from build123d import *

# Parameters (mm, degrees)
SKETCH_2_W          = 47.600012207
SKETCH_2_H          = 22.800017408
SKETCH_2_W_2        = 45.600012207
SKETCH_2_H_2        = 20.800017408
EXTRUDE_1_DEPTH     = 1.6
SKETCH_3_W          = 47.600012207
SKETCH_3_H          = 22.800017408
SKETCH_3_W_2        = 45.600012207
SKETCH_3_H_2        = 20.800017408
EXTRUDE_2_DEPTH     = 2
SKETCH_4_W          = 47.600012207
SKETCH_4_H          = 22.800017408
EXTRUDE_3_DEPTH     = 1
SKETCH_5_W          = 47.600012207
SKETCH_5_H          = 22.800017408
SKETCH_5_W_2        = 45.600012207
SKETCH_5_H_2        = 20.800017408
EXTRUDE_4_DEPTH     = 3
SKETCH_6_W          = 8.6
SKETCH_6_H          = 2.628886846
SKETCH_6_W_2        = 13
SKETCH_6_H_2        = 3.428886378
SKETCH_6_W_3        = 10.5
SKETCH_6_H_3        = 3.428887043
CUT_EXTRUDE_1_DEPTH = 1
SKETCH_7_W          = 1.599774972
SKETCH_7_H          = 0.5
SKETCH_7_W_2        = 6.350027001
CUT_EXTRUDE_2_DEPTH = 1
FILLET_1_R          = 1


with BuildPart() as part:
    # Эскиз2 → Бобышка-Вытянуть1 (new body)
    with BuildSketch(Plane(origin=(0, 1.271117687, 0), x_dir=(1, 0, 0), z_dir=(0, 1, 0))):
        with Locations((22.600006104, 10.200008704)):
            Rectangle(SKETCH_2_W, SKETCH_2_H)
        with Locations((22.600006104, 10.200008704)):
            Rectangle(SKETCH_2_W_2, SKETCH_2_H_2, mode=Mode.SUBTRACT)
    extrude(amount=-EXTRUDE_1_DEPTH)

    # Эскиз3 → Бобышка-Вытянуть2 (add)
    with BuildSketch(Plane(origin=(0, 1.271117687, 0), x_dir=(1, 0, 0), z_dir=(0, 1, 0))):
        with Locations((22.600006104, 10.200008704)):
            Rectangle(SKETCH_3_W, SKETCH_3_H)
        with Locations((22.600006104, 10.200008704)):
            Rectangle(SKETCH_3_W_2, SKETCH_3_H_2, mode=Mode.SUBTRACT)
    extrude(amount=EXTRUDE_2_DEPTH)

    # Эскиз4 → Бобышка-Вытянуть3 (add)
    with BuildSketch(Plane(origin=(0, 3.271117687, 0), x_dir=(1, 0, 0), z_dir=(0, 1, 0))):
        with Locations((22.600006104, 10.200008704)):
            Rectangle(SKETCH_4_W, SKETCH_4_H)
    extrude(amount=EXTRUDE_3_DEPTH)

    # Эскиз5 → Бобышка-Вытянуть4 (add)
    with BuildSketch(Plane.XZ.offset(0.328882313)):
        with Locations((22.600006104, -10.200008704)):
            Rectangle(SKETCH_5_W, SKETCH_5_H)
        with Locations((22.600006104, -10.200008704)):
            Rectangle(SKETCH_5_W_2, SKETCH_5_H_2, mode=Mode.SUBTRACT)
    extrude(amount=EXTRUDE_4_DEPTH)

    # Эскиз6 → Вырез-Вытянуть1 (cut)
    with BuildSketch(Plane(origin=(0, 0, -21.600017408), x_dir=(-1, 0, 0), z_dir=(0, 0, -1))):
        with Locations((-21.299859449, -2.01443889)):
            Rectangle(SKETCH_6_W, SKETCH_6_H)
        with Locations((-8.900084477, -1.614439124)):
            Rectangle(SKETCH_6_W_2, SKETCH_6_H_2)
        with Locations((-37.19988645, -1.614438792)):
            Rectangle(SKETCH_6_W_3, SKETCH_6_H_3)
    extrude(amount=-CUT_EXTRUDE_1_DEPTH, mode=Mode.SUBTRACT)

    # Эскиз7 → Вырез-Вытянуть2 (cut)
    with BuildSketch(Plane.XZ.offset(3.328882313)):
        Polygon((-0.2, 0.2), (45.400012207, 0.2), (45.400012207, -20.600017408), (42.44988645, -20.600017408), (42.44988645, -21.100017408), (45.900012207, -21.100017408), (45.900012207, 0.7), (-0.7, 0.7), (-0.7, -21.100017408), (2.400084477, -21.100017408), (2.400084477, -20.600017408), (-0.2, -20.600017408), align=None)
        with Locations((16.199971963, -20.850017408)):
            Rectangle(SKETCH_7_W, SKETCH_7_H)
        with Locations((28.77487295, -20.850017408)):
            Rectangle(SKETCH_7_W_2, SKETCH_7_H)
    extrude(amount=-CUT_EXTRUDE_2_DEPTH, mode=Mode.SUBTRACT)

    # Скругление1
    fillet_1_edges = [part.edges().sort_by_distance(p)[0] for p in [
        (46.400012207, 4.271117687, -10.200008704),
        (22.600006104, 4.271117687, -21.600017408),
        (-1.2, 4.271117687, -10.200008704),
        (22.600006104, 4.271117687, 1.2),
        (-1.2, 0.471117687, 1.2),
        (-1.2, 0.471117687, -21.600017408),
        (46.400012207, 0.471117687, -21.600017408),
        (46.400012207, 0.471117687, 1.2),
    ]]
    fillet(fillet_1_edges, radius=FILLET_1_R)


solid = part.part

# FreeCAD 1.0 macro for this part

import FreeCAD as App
import Part
import Sketcher

V = App.Vector
Q = App.Units.Quantity


def edges_at(feature, points):
    """Names of the edges that pass closest to the given points."""
    edges = feature.Shape.Edges
    near = lambda p: min(range(len(edges)), key=lambda i: edges[i].distToShape(Part.Vertex(*p))[0])
    return sorted({f"Edge{near(p) + 1}" for p in points})

doc = App.newDocument("Part")
body = doc.addObject("PartDesign::Body", "Body")

# Sketch on XZ plane
sketch1 = body.newObject("Sketcher::SketchObject", "Sketch")
sketch1.AttachmentSupport = (doc.getObject("XZ_Plane"), [""])
sketch1.MapMode = "FlatFace"
sketch1.AttachmentOffset = App.Placement(V(0, 0, -1.271118), App.Rotation())
sketch1.addGeometry(Part.LineSegment(V(-1, -22, 0), V(-1, 1, 0)), False)
sketch1.addGeometry(Part.LineSegment(V(-1, 1, 0), V(46, 1, 0)), False)
sketch1.addGeometry(Part.LineSegment(V(46, 1, 0), V(46, -22, 0)), False)
sketch1.addGeometry(Part.LineSegment(V(46, -22, 0), V(-1, -22, 0)), False)
sketch1.addGeometry(Part.LineSegment(V(45, 0, 0), V(0, 0, 0)), False)
sketch1.addGeometry(Part.LineSegment(V(0, 0, 0), V(0, -21, 0)), False)
sketch1.addGeometry(Part.LineSegment(V(0, -21, 0), V(45, -21, 0)), False)
sketch1.addGeometry(Part.LineSegment(V(45, -21, 0), V(45, 0, 0)), False)
sketch1.addConstraint(Sketcher.Constraint("Coincident", 0, 2, 1, 1))
sketch1.addConstraint(Sketcher.Constraint("Coincident", 1, 2, 2, 1))
sketch1.addConstraint(Sketcher.Constraint("Coincident", 2, 2, 3, 1))
sketch1.addConstraint(Sketcher.Constraint("Coincident", 3, 2, 0, 1))
sketch1.addConstraint(Sketcher.Constraint("Coincident", 4, 2, 5, 1))
sketch1.addConstraint(Sketcher.Constraint("Coincident", 5, 2, 6, 1))
sketch1.addConstraint(Sketcher.Constraint("Coincident", 6, 2, 7, 1))
sketch1.addConstraint(Sketcher.Constraint("Coincident", 7, 2, 4, 1))
sketch1.addConstraint(Sketcher.Constraint("Vertical", 0))
sketch1.addConstraint(Sketcher.Constraint("Horizontal", 1))
sketch1.addConstraint(Sketcher.Constraint("Vertical", 2))
sketch1.addConstraint(Sketcher.Constraint("Horizontal", 3))
sketch1.addConstraint(Sketcher.Constraint("Horizontal", 4))
sketch1.addConstraint(Sketcher.Constraint("Vertical", 5))
sketch1.addConstraint(Sketcher.Constraint("Horizontal", 6))
sketch1.addConstraint(Sketcher.Constraint("Vertical", 7))
sketch1.addConstraint(Sketcher.Constraint("DistanceX", 0, 2, 4, 2, Q("1 mm")))
sketch1.addConstraint(Sketcher.Constraint("DistanceY", 4, 2, 0, 2, Q("1 mm")))
sketch1.addConstraint(Sketcher.Constraint("DistanceY", 3, 2, 5, 2, Q("1 mm")))
sketch1.addConstraint(Sketcher.Constraint("DistanceX", 6, 2, 2, 2, Q("1 mm")))
sketch1.addConstraint(Sketcher.Constraint("DistanceX", 0, 2, -1, 1, Q("1.2 mm")))
sketch1.addConstraint(Sketcher.Constraint("DistanceY", -1, 1, 0, 2, Q("1.2 mm")))
sketch1.addConstraint(Sketcher.Constraint("DistanceX", 1, 1, 1, 2, Q("47.600012 mm")))
sketch1.addConstraint(Sketcher.Constraint("DistanceY", 0, 1, 0, 2, Q("22.800017 mm")))
pad1 = body.newObject("PartDesign::Pad", "Pad")
pad1.Profile = sketch1
pad1.Length = 1.6

# Sketch on XZ plane
sketch2 = body.newObject("Sketcher::SketchObject", "Sketch001")
sketch2.AttachmentSupport = (doc.getObject("XZ_Plane"), [""])
sketch2.MapMode = "FlatFace"
sketch2.AttachmentOffset = App.Placement(V(0, 0, -1.271118), App.Rotation())
sketch2.addGeometry(Part.LineSegment(V(-1, -22, 0), V(-1, 1, 0)), False)
sketch2.addGeometry(Part.LineSegment(V(-1, 1, 0), V(46, 1, 0)), False)
sketch2.addGeometry(Part.LineSegment(V(46, 1, 0), V(46, -22, 0)), False)
sketch2.addGeometry(Part.LineSegment(V(46, -22, 0), V(-1, -22, 0)), False)
sketch2.addGeometry(Part.LineSegment(V(45, 0, 0), V(0, 0, 0)), False)
sketch2.addGeometry(Part.LineSegment(V(0, 0, 0), V(0, -21, 0)), False)
sketch2.addGeometry(Part.LineSegment(V(0, -21, 0), V(45, -21, 0)), False)
sketch2.addGeometry(Part.LineSegment(V(45, -21, 0), V(45, 0, 0)), False)
sketch2.addConstraint(Sketcher.Constraint("Coincident", 0, 2, 1, 1))
sketch2.addConstraint(Sketcher.Constraint("Coincident", 1, 2, 2, 1))
sketch2.addConstraint(Sketcher.Constraint("Coincident", 2, 2, 3, 1))
sketch2.addConstraint(Sketcher.Constraint("Coincident", 3, 2, 0, 1))
sketch2.addConstraint(Sketcher.Constraint("Coincident", 4, 2, 5, 1))
sketch2.addConstraint(Sketcher.Constraint("Coincident", 5, 2, 6, 1))
sketch2.addConstraint(Sketcher.Constraint("Coincident", 6, 2, 7, 1))
sketch2.addConstraint(Sketcher.Constraint("Coincident", 7, 2, 4, 1))
sketch2.addConstraint(Sketcher.Constraint("Vertical", 0))
sketch2.addConstraint(Sketcher.Constraint("Horizontal", 1))
sketch2.addConstraint(Sketcher.Constraint("Vertical", 2))
sketch2.addConstraint(Sketcher.Constraint("Horizontal", 3))
sketch2.addConstraint(Sketcher.Constraint("Horizontal", 4))
sketch2.addConstraint(Sketcher.Constraint("Vertical", 5))
sketch2.addConstraint(Sketcher.Constraint("Horizontal", 6))
sketch2.addConstraint(Sketcher.Constraint("Vertical", 7))
sketch2.addConstraint(Sketcher.Constraint("DistanceX", 0, 2, 4, 2, Q("1 mm")))
sketch2.addConstraint(Sketcher.Constraint("DistanceY", 4, 2, 0, 2, Q("1 mm")))
sketch2.addConstraint(Sketcher.Constraint("DistanceY", 3, 2, 5, 2, Q("1 mm")))
sketch2.addConstraint(Sketcher.Constraint("DistanceX", 6, 2, 2, 2, Q("1 mm")))
sketch2.addConstraint(Sketcher.Constraint("DistanceX", 0, 2, -1, 1, Q("1.2 mm")))
sketch2.addConstraint(Sketcher.Constraint("DistanceY", -1, 1, 0, 2, Q("1.2 mm")))
sketch2.addConstraint(Sketcher.Constraint("DistanceX", 1, 1, 1, 2, Q("47.600012 mm")))
sketch2.addConstraint(Sketcher.Constraint("DistanceY", 0, 1, 0, 2, Q("22.800017 mm")))
pad2 = body.newObject("PartDesign::Pad", "Pad001")
pad2.Profile = sketch2
pad2.Length = 2
pad2.Reversed = True

# Sketch on XZ plane
sketch3 = body.newObject("Sketcher::SketchObject", "Sketch002")
sketch3.AttachmentSupport = (doc.getObject("XZ_Plane"), [""])
sketch3.MapMode = "FlatFace"
sketch3.AttachmentOffset = App.Placement(V(0, 0, -3.271118), App.Rotation())
sketch3.addGeometry(Part.LineSegment(V(-1, -22, 0), V(-1, 1, 0)), False)
sketch3.addGeometry(Part.LineSegment(V(-1, 1, 0), V(46, 1, 0)), False)
sketch3.addGeometry(Part.LineSegment(V(46, 1, 0), V(46, -22, 0)), False)
sketch3.addGeometry(Part.LineSegment(V(46, -22, 0), V(-1, -22, 0)), False)
sketch3.addConstraint(Sketcher.Constraint("Coincident", 0, 2, 1, 1))
sketch3.addConstraint(Sketcher.Constraint("Coincident", 1, 2, 2, 1))
sketch3.addConstraint(Sketcher.Constraint("Coincident", 2, 2, 3, 1))
sketch3.addConstraint(Sketcher.Constraint("Coincident", 3, 2, 0, 1))
sketch3.addConstraint(Sketcher.Constraint("Vertical", 0))
sketch3.addConstraint(Sketcher.Constraint("Horizontal", 1))
sketch3.addConstraint(Sketcher.Constraint("Vertical", 2))
sketch3.addConstraint(Sketcher.Constraint("Horizontal", 3))
sketch3.addConstraint(Sketcher.Constraint("DistanceX", 0, 2, -1, 1, Q("1.2 mm")))
sketch3.addConstraint(Sketcher.Constraint("DistanceY", -1, 1, 0, 2, Q("1.2 mm")))
sketch3.addConstraint(Sketcher.Constraint("DistanceX", 1, 1, 1, 2, Q("47.600012 mm")))
sketch3.addConstraint(Sketcher.Constraint("DistanceY", 0, 1, 0, 2, Q("22.800017 mm")))
pad3 = body.newObject("PartDesign::Pad", "Pad002")
pad3.Profile = sketch3
pad3.Length = 1
pad3.Reversed = True

# Sketch on XZ plane
sketch4 = body.newObject("Sketcher::SketchObject", "Sketch003")
sketch4.AttachmentSupport = (doc.getObject("XZ_Plane"), [""])
sketch4.MapMode = "FlatFace"
sketch4.AttachmentOffset = App.Placement(V(0, 0, 0.328882), App.Rotation())
sketch4.addGeometry(Part.LineSegment(V(-1, 1, 0), V(-1, -22, 0)), False)
sketch4.addGeometry(Part.LineSegment(V(-1, -22, 0), V(46, -22, 0)), False)
sketch4.addGeometry(Part.LineSegment(V(46, -22, 0), V(46, 1, 0)), False)
sketch4.addGeometry(Part.LineSegment(V(46, 1, 0), V(-1, 1, 0)), False)
sketch4.addGeometry(Part.LineSegment(V(45, -21, 0), V(0, -21, 0)), False)
sketch4.addGeometry(Part.LineSegment(V(0, -21, 0), V(0, 0, 0)), False)
sketch4.addGeometry(Part.LineSegment(V(0, 0, 0), V(45, 0, 0)), False)
sketch4.addGeometry(Part.LineSegment(V(45, 0, 0), V(45, -21, 0)), False)
sketch4.addConstraint(Sketcher.Constraint("Coincident", 0, 2, 1, 1))
sketch4.addConstraint(Sketcher.Constraint("Coincident", 1, 2, 2, 1))
sketch4.addConstraint(Sketcher.Constraint("Coincident", 2, 2, 3, 1))
sketch4.addConstraint(Sketcher.Constraint("Coincident", 3, 2, 0, 1))
sketch4.addConstraint(Sketcher.Constraint("Coincident", 4, 2, 5, 1))
sketch4.addConstraint(Sketcher.Constraint("Coincident", 5, 2, 6, 1))
sketch4.addConstraint(Sketcher.Constraint("Coincident", 6, 2, 7, 1))
sketch4.addConstraint(Sketcher.Constraint("Coincident", 7, 2, 4, 1))
sketch4.addConstraint(Sketcher.Constraint("Vertical", 0))
sketch4.addConstraint(Sketcher.Constraint("Horizontal", 1))
sketch4.addConstraint(Sketcher.Constraint("Vertical", 2))
sketch4.addConstraint(Sketcher.Constraint("Horizontal", 3))
sketch4.addConstraint(Sketcher.Constraint("Horizontal", 4))
sketch4.addConstraint(Sketcher.Constraint("Vertical", 5))
sketch4.addConstraint(Sketcher.Constraint("Horizontal", 6))
sketch4.addConstraint(Sketcher.Constraint("Vertical", 7))
sketch4.addConstraint(Sketcher.Constraint("DistanceX", 0, 2, 4, 2, Q("1 mm")))
sketch4.addConstraint(Sketcher.Constraint("DistanceY", 0, 2, 4, 2, Q("1 mm")))
sketch4.addConstraint(Sketcher.Constraint("DistanceY", 5, 2, 3, 2, Q("1 mm")))
sketch4.addConstraint(Sketcher.Constraint("DistanceX", 6, 2, 2, 2, Q("1 mm")))
sketch4.addConstraint(Sketcher.Constraint("DistanceX", 0, 2, -1, 1, Q("1.2 mm")))
sketch4.addConstraint(Sketcher.Constraint("DistanceY", -1, 1, 2, 2, Q("1.2 mm")))
sketch4.addConstraint(Sketcher.Constraint("DistanceX", 1, 1, 1, 2, Q("47.600012 mm")))
sketch4.addConstraint(Sketcher.Constraint("DistanceY", 0, 2, 0, 1, Q("22.800017 mm")))
pad4 = body.newObject("PartDesign::Pad", "Pad003")
pad4.Profile = sketch4
pad4.Length = 3

# Sketch on XY plane
sketch5 = body.newObject("Sketcher::SketchObject", "Sketch004")
sketch5.AttachmentSupport = (doc.getObject("XY_Plane"), [""])
sketch5.MapMode = "FlatFace"
sketch5.AttachmentOffset = App.Placement(V(0, 0, -21.600017), App.Rotation())
sketch5.addGeometry(Part.LineSegment(V(25.6, -0.7, 0), V(25.6, -3.3, 0)), False)
sketch5.addGeometry(Part.LineSegment(V(25.6, -3.3, 0), V(17, -3.3, 0)), False)
sketch5.addGeometry(Part.LineSegment(V(17, -3.3, 0), V(17, -0.7, 0)), False)
sketch5.addGeometry(Part.LineSegment(V(17, -0.7, 0), V(25.6, -0.7, 0)), False)
sketch5.addGeometry(Part.LineSegment(V(15.4, 0.1, 0), V(15.4, -3.3, 0)), False)
sketch5.addGeometry(Part.LineSegment(V(15.4, -3.3, 0), V(2.4, -3.3, 0)), False)
sketch5.addGeometry(Part.LineSegment(V(2.4, -3.3, 0), V(2.4, 0.1, 0)), False)
sketch5.addGeometry(Part.LineSegment(V(2.4, 0.1, 0), V(15.4, 0.1, 0)), False)
sketch5.addGeometry(Part.LineSegment(V(42.4, 0.1, 0), V(42.4, -3.3, 0)), False)
sketch5.addGeometry(Part.LineSegment(V(42.4, -3.3, 0), V(31.9, -3.3, 0)), False)
sketch5.addGeometry(Part.LineSegment(V(31.9, -3.3, 0), V(31.9, 0.1, 0)), False)
sketch5.addGeometry(Part.LineSegment(V(31.9, 0.1, 0), V(42.4, 0.1, 0)), False)
sketch5.addConstraint(Sketcher.Constraint("Coincident", 0, 2, 1, 1))
sketch5.addConstraint(Sketcher.Constraint("Coincident", 1, 2, 2, 1))
sketch5.addConstraint(Sketcher.Constraint("Coincident", 2, 2, 3, 1))
sketch5.addConstraint(Sketcher.Constraint("Coincident", 3, 2, 0, 1))
sketch5.addConstraint(Sketcher.Constraint("Coincident", 4, 2, 5, 1))
sketch5.addConstraint(Sketcher.Constraint("Coincident", 5, 2, 6, 1))
sketch5.addConstraint(Sketcher.Constraint("Coincident", 6, 2, 7, 1))
sketch5.addConstraint(Sketcher.Constraint("Coincident", 7, 2, 4, 1))
sketch5.addConstraint(Sketcher.Constraint("Coincident", 8, 2, 9, 1))
sketch5.addConstraint(Sketcher.Constraint("Coincident", 9, 2, 10, 1))
sketch5.addConstraint(Sketcher.Constraint("Coincident", 10, 2, 11, 1))
sketch5.addConstraint(Sketcher.Constraint("Coincident", 11, 2, 8, 1))
sketch5.addConstraint(Sketcher.Constraint("Vertical", 0))
sketch5.addConstraint(Sketcher.Constraint("Horizontal", 1))
sketch5.addConstraint(Sketcher.Constraint("Vertical", 2))
sketch5.addConstraint(Sketcher.Constraint("Horizontal", 3))
sketch5.addConstraint(Sketcher.Constraint("Vertical", 4))
sketch5.addConstraint(Sketcher.Constraint("Horizontal", 5))
sketch5.addConstraint(Sketcher.Constraint("Vertical", 6))
sketch5.addConstraint(Sketcher.Constraint("Horizontal", 7))
sketch5.addConstraint(Sketcher.Constraint("Vertical", 8))
sketch5.addConstraint(Sketcher.Constraint("Horizontal", 9))
sketch5.addConstraint(Sketcher.Constraint("Vertical", 10))
sketch5.addConstraint(Sketcher.Constraint("Horizontal", 11))
sketch5.addConstraint(Sketcher.Constraint("Horizontal", 1, 2, 4, 2))
sketch5.addConstraint(Sketcher.Constraint("Horizontal", 5, 2, 8, 2))
sketch5.addConstraint(Sketcher.Constraint("Horizontal", 7, 2, 10, 2))
sketch5.addConstraint(Sketcher.Constraint("DistanceX", 5, 2, 5, 1, Q("13 mm")))
sketch5.addConstraint(Sketcher.Constraint("DistanceX", 1, 2, 1, 1, Q("8.6 mm")))
sketch5.addConstraint(Sketcher.Constraint("DistanceX", 9, 2, 9, 1, Q("10.5 mm")))
sketch5.addConstraint(Sketcher.Constraint("DistanceY", 2, 2, 6, 2, Q("0.8 mm")))
sketch5.addConstraint(Sketcher.Constraint("DistanceX", 4, 2, 8, 2, Q("27.049802 mm")))
sketch5.addConstraint(Sketcher.Constraint("DistanceY", 0, 2, 0, 1, Q("2.628887 mm")))
sketch5.addConstraint(Sketcher.Constraint("DistanceX", -1, 1, 0, 2, Q("25.599859 mm")))
sketch5.addConstraint(Sketcher.Constraint("DistanceY", 0, 2, -1, 1, Q("3.328882 mm")))
sketch5.addConstraint(Sketcher.Constraint("DistanceX", -1, 1, 4, 2, Q("15.400084 mm")))
pocket1 = body.newObject("PartDesign::Pocket", "Pocket")
pocket1.Profile = sketch5
pocket1.Length = 1
pocket1.Reversed = True

# Sketch on XZ plane
sketch6 = body.newObject("Sketcher::SketchObject", "Sketch005")
sketch6.AttachmentSupport = (doc.getObject("XZ_Plane"), [""])
sketch6.MapMode = "FlatFace"
sketch6.AttachmentOffset = App.Placement(V(0, 0, 3.328882), App.Rotation())
sketch6.addGeometry(Part.LineSegment(V(-0.2, 0.2, 0), V(45.4, 0.2, 0)), False)
sketch6.addGeometry(Part.LineSegment(V(45.4, 0.2, 0), V(45.4, -20.6, 0)), False)
sketch6.addGeometry(Part.LineSegment(V(45.4, -20.6, 0), V(42.4, -20.6, 0)), False)
sketch6.addGeometry(Part.LineSegment(V(42.4, -20.6, 0), V(42.4, -21.1, 0)), False)
sketch6.addGeometry(Part.LineSegment(V(42.4, -21.1, 0), V(45.9, -21.1, 0)), False)
sketch6.addGeometry(Part.LineSegment(V(45.9, -21.1, 0), V(45.9, 0.7, 0)), False)
sketch6.addGeometry(Part.LineSegment(V(45.9, 0.7, 0), V(-0.7, 0.7, 0)), False)
sketch6.addGeometry(Part.LineSegment(V(-0.7, 0.7, 0), V(-0.7, -21.1, 0)), False)
sketch6.addGeometry(Part.LineSegment(V(-0.7, -21.1, 0), V(2.4, -21.1, 0)), False)
sketch6.addGeometry(Part.LineSegment(V(2.4, -21.1, 0), V(2.4, -20.6, 0)), False)
sketch6.addGeometry(Part.LineSegment(V(2.4, -20.6, 0), V(-0.2, -20.6, 0)), False)
sketch6.addGeometry(Part.LineSegment(V(-0.2, -20.6, 0), V(-0.2, 0.2, 0)), False)
sketch6.addGeometry(Part.LineSegment(V(15.4, -20.6, 0), V(15.4, -21.1, 0)), False)
sketch6.addGeometry(Part.LineSegment(V(15.4, -21.1, 0), V(17, -21.1, 0)), False)
sketch6.addGeometry(Part.LineSegment(V(17, -21.1, 0), V(17, -20.6, 0)), False)
sketch6.addGeometry(Part.LineSegment(V(17, -20.6, 0), V(15.4, -20.6, 0)), False)
sketch6.addGeometry(Part.LineSegment(V(25.6, -20.6, 0), V(25.6, -21.1, 0)), False)
sketch6.addGeometry(Part.LineSegment(V(25.6, -21.1, 0), V(31.9, -21.1, 0)), False)
sketch6.addGeometry(Part.LineSegment(V(31.9, -21.1, 0), V(31.9, -20.6, 0)), False)
sketch6.addGeometry(Part.LineSegment(V(31.9, -20.6, 0), V(25.6, -20.6, 0)), False)
sketch6.addConstraint(Sketcher.Constraint("Coincident", 0, 2, 1, 1))
sketch6.addConstraint(Sketcher.Constraint("Coincident", 1, 2, 2, 1))
sketch6.addConstraint(Sketcher.Constraint("Coincident", 2, 2, 3, 1))
sketch6.addConstraint(Sketcher.Constraint("Coincident", 3, 2, 4, 1))
sketch6.addConstraint(Sketcher.Constraint("Coincident", 4, 2, 5, 1))
sketch6.addConstraint(Sketcher.Constraint("Coincident", 5, 2, 6, 1))
sketch6.addConstraint(Sketcher.Constraint("Coincident", 6, 2, 7, 1))
sketch6.addConstraint(Sketcher.Constraint("Coincident", 7, 2, 8, 1))
sketch6.addConstraint(Sketcher.Constraint("Coincident", 8, 2, 9, 1))
sketch6.addConstraint(Sketcher.Constraint("Coincident", 9, 2, 10, 1))
sketch6.addConstraint(Sketcher.Constraint("Coincident", 10, 2, 11, 1))
sketch6.addConstraint(Sketcher.Constraint("Coincident", 11, 2, 0, 1))
sketch6.addConstraint(Sketcher.Constraint("Coincident", 12, 2, 13, 1))
sketch6.addConstraint(Sketcher.Constraint("Coincident", 13, 2, 14, 1))
sketch6.addConstraint(Sketcher.Constraint("Coincident", 14, 2, 15, 1))
sketch6.addConstraint(Sketcher.Constraint("Coincident", 15, 2, 12, 1))
sketch6.addConstraint(Sketcher.Constraint("Coincident", 16, 2, 17, 1))
sketch6.addConstraint(Sketcher.Constraint("Coincident", 17, 2, 18, 1))
sketch6.addConstraint(Sketcher.Constraint("Coincident", 18, 2, 19, 1))
sketch6.addConstraint(Sketcher.Constraint("Coincident", 19, 2, 16, 1))
sketch6.addConstraint(Sketcher.Constraint("Horizontal", 0))
sketch6.addConstraint(Sketcher.Constraint("Vertical", 1))
sketch6.addConstraint(Sketcher.Constraint("Horizontal", 2))
sketch6.addConstraint(Sketcher.Constraint("Vertical", 3))
sketch6.addConstraint(Sketcher.Constraint("Horizontal", 4))
sketch6.addConstraint(Sketcher.Constraint("Vertical", 5))
sketch6.addConstraint(Sketcher.Constraint("Horizontal", 6))
sketch6.addConstraint(Sketcher.Constraint("Vertical", 7))
sketch6.addConstraint(Sketcher.Constraint("Horizontal", 8))
sketch6.addConstraint(Sketcher.Constraint("Vertical", 9))
sketch6.addConstraint(Sketcher.Constraint("Horizontal", 10))
sketch6.addConstraint(Sketcher.Constraint("Vertical", 11))
sketch6.addConstraint(Sketcher.Constraint("Vertical", 12))
sketch6.addConstraint(Sketcher.Constraint("Horizontal", 13))
sketch6.addConstraint(Sketcher.Constraint("Vertical", 14))
sketch6.addConstraint(Sketcher.Constraint("Horizontal", 15))
sketch6.addConstraint(Sketcher.Constraint("Vertical", 16))
sketch6.addConstraint(Sketcher.Constraint("Horizontal", 17))
sketch6.addConstraint(Sketcher.Constraint("Vertical", 18))
sketch6.addConstraint(Sketcher.Constraint("Horizontal", 19))
sketch6.addConstraint(Sketcher.Constraint("Horizontal", 4, 2, 7, 2))
sketch6.addConstraint(Sketcher.Constraint("Horizontal", 2, 2, 9, 2))
sketch6.addConstraint(Sketcher.Constraint("Horizontal", 8, 2, 12, 2))
sketch6.addConstraint(Sketcher.Constraint("Horizontal", 10, 2, 14, 2))
sketch6.addConstraint(Sketcher.Constraint("Horizontal", 13, 2, 16, 2))
sketch6.addConstraint(Sketcher.Constraint("Horizontal", 15, 2, 18, 2))
sketch6.addConstraint(Sketcher.Constraint("DistanceY", 3, 2, 3, 1, Q("0.5 mm")))
sketch6.addConstraint(Sketcher.Constraint("DistanceX", 8, 2, 12, 2, Q("13 mm")))
sketch6.addConstraint(Sketcher.Constraint("DistanceY", -1, 1, 0, 2, Q("0.2 mm")))
sketch6.addConstraint(Sketcher.Constraint("DistanceY", -1, 1, 5, 2, Q("0.7 mm")))
sketch6.addConstraint(Sketcher.Constraint("DistanceX", 6, 2, -1, 1, Q("0.7 mm")))
sketch6.addConstraint(Sketcher.Constraint("DistanceX", 10, 2, -1, 1, Q("0.2 mm")))
sketch6.addConstraint(Sketcher.Constraint("DistanceX", 1, 2, 4, 2, Q("0.5 mm")))
sketch6.addConstraint(Sketcher.Constraint("DistanceX", 13, 2, 16, 2, Q("8.6 mm")))
sketch6.addConstraint(Sketcher.Constraint("DistanceX", 17, 2, 3, 2, Q("10.5 mm")))
sketch6.addConstraint(Sketcher.Constraint("DistanceX", 8, 2, 3, 2, Q("40.049802 mm")))
sketch6.addConstraint(Sketcher.Constraint("DistanceX", 0, 1, 0, 2, Q("45.600012 mm")))
sketch6.addConstraint(Sketcher.Constraint("DistanceX", 2, 2, 2, 1, Q("2.950126 mm")))
sketch6.addConstraint(Sketcher.Constraint("DistanceX", 13, 1, 13, 2, Q("1.599775 mm")))
sketch6.addConstraint(Sketcher.Constraint("DistanceY", 1, 2, 1, 1, Q("20.800017 mm")))
pocket2 = body.newObject("PartDesign::Pocket", "Pocket001")
pocket2.Profile = sketch6
pocket2.Length = 1
doc.recompute()

fillet = body.newObject("PartDesign::Fillet", "Fillet")
fillet.Base = (pocket2, edges_at(pocket2, [
    (46.4, 4.271, -10.2),
    (22.6, 4.271, -21.6),
    (-1.2, 4.271, -10.2),
    (22.6, 4.271, 1.2),
    (-1.2, 0.471, 1.2),
    (-1.2, 0.471, -21.6),
    (46.4, 0.471, -21.6),
    (46.4, 0.471, 1.2),
]))
fillet.Radius = 1

doc.recompute()
